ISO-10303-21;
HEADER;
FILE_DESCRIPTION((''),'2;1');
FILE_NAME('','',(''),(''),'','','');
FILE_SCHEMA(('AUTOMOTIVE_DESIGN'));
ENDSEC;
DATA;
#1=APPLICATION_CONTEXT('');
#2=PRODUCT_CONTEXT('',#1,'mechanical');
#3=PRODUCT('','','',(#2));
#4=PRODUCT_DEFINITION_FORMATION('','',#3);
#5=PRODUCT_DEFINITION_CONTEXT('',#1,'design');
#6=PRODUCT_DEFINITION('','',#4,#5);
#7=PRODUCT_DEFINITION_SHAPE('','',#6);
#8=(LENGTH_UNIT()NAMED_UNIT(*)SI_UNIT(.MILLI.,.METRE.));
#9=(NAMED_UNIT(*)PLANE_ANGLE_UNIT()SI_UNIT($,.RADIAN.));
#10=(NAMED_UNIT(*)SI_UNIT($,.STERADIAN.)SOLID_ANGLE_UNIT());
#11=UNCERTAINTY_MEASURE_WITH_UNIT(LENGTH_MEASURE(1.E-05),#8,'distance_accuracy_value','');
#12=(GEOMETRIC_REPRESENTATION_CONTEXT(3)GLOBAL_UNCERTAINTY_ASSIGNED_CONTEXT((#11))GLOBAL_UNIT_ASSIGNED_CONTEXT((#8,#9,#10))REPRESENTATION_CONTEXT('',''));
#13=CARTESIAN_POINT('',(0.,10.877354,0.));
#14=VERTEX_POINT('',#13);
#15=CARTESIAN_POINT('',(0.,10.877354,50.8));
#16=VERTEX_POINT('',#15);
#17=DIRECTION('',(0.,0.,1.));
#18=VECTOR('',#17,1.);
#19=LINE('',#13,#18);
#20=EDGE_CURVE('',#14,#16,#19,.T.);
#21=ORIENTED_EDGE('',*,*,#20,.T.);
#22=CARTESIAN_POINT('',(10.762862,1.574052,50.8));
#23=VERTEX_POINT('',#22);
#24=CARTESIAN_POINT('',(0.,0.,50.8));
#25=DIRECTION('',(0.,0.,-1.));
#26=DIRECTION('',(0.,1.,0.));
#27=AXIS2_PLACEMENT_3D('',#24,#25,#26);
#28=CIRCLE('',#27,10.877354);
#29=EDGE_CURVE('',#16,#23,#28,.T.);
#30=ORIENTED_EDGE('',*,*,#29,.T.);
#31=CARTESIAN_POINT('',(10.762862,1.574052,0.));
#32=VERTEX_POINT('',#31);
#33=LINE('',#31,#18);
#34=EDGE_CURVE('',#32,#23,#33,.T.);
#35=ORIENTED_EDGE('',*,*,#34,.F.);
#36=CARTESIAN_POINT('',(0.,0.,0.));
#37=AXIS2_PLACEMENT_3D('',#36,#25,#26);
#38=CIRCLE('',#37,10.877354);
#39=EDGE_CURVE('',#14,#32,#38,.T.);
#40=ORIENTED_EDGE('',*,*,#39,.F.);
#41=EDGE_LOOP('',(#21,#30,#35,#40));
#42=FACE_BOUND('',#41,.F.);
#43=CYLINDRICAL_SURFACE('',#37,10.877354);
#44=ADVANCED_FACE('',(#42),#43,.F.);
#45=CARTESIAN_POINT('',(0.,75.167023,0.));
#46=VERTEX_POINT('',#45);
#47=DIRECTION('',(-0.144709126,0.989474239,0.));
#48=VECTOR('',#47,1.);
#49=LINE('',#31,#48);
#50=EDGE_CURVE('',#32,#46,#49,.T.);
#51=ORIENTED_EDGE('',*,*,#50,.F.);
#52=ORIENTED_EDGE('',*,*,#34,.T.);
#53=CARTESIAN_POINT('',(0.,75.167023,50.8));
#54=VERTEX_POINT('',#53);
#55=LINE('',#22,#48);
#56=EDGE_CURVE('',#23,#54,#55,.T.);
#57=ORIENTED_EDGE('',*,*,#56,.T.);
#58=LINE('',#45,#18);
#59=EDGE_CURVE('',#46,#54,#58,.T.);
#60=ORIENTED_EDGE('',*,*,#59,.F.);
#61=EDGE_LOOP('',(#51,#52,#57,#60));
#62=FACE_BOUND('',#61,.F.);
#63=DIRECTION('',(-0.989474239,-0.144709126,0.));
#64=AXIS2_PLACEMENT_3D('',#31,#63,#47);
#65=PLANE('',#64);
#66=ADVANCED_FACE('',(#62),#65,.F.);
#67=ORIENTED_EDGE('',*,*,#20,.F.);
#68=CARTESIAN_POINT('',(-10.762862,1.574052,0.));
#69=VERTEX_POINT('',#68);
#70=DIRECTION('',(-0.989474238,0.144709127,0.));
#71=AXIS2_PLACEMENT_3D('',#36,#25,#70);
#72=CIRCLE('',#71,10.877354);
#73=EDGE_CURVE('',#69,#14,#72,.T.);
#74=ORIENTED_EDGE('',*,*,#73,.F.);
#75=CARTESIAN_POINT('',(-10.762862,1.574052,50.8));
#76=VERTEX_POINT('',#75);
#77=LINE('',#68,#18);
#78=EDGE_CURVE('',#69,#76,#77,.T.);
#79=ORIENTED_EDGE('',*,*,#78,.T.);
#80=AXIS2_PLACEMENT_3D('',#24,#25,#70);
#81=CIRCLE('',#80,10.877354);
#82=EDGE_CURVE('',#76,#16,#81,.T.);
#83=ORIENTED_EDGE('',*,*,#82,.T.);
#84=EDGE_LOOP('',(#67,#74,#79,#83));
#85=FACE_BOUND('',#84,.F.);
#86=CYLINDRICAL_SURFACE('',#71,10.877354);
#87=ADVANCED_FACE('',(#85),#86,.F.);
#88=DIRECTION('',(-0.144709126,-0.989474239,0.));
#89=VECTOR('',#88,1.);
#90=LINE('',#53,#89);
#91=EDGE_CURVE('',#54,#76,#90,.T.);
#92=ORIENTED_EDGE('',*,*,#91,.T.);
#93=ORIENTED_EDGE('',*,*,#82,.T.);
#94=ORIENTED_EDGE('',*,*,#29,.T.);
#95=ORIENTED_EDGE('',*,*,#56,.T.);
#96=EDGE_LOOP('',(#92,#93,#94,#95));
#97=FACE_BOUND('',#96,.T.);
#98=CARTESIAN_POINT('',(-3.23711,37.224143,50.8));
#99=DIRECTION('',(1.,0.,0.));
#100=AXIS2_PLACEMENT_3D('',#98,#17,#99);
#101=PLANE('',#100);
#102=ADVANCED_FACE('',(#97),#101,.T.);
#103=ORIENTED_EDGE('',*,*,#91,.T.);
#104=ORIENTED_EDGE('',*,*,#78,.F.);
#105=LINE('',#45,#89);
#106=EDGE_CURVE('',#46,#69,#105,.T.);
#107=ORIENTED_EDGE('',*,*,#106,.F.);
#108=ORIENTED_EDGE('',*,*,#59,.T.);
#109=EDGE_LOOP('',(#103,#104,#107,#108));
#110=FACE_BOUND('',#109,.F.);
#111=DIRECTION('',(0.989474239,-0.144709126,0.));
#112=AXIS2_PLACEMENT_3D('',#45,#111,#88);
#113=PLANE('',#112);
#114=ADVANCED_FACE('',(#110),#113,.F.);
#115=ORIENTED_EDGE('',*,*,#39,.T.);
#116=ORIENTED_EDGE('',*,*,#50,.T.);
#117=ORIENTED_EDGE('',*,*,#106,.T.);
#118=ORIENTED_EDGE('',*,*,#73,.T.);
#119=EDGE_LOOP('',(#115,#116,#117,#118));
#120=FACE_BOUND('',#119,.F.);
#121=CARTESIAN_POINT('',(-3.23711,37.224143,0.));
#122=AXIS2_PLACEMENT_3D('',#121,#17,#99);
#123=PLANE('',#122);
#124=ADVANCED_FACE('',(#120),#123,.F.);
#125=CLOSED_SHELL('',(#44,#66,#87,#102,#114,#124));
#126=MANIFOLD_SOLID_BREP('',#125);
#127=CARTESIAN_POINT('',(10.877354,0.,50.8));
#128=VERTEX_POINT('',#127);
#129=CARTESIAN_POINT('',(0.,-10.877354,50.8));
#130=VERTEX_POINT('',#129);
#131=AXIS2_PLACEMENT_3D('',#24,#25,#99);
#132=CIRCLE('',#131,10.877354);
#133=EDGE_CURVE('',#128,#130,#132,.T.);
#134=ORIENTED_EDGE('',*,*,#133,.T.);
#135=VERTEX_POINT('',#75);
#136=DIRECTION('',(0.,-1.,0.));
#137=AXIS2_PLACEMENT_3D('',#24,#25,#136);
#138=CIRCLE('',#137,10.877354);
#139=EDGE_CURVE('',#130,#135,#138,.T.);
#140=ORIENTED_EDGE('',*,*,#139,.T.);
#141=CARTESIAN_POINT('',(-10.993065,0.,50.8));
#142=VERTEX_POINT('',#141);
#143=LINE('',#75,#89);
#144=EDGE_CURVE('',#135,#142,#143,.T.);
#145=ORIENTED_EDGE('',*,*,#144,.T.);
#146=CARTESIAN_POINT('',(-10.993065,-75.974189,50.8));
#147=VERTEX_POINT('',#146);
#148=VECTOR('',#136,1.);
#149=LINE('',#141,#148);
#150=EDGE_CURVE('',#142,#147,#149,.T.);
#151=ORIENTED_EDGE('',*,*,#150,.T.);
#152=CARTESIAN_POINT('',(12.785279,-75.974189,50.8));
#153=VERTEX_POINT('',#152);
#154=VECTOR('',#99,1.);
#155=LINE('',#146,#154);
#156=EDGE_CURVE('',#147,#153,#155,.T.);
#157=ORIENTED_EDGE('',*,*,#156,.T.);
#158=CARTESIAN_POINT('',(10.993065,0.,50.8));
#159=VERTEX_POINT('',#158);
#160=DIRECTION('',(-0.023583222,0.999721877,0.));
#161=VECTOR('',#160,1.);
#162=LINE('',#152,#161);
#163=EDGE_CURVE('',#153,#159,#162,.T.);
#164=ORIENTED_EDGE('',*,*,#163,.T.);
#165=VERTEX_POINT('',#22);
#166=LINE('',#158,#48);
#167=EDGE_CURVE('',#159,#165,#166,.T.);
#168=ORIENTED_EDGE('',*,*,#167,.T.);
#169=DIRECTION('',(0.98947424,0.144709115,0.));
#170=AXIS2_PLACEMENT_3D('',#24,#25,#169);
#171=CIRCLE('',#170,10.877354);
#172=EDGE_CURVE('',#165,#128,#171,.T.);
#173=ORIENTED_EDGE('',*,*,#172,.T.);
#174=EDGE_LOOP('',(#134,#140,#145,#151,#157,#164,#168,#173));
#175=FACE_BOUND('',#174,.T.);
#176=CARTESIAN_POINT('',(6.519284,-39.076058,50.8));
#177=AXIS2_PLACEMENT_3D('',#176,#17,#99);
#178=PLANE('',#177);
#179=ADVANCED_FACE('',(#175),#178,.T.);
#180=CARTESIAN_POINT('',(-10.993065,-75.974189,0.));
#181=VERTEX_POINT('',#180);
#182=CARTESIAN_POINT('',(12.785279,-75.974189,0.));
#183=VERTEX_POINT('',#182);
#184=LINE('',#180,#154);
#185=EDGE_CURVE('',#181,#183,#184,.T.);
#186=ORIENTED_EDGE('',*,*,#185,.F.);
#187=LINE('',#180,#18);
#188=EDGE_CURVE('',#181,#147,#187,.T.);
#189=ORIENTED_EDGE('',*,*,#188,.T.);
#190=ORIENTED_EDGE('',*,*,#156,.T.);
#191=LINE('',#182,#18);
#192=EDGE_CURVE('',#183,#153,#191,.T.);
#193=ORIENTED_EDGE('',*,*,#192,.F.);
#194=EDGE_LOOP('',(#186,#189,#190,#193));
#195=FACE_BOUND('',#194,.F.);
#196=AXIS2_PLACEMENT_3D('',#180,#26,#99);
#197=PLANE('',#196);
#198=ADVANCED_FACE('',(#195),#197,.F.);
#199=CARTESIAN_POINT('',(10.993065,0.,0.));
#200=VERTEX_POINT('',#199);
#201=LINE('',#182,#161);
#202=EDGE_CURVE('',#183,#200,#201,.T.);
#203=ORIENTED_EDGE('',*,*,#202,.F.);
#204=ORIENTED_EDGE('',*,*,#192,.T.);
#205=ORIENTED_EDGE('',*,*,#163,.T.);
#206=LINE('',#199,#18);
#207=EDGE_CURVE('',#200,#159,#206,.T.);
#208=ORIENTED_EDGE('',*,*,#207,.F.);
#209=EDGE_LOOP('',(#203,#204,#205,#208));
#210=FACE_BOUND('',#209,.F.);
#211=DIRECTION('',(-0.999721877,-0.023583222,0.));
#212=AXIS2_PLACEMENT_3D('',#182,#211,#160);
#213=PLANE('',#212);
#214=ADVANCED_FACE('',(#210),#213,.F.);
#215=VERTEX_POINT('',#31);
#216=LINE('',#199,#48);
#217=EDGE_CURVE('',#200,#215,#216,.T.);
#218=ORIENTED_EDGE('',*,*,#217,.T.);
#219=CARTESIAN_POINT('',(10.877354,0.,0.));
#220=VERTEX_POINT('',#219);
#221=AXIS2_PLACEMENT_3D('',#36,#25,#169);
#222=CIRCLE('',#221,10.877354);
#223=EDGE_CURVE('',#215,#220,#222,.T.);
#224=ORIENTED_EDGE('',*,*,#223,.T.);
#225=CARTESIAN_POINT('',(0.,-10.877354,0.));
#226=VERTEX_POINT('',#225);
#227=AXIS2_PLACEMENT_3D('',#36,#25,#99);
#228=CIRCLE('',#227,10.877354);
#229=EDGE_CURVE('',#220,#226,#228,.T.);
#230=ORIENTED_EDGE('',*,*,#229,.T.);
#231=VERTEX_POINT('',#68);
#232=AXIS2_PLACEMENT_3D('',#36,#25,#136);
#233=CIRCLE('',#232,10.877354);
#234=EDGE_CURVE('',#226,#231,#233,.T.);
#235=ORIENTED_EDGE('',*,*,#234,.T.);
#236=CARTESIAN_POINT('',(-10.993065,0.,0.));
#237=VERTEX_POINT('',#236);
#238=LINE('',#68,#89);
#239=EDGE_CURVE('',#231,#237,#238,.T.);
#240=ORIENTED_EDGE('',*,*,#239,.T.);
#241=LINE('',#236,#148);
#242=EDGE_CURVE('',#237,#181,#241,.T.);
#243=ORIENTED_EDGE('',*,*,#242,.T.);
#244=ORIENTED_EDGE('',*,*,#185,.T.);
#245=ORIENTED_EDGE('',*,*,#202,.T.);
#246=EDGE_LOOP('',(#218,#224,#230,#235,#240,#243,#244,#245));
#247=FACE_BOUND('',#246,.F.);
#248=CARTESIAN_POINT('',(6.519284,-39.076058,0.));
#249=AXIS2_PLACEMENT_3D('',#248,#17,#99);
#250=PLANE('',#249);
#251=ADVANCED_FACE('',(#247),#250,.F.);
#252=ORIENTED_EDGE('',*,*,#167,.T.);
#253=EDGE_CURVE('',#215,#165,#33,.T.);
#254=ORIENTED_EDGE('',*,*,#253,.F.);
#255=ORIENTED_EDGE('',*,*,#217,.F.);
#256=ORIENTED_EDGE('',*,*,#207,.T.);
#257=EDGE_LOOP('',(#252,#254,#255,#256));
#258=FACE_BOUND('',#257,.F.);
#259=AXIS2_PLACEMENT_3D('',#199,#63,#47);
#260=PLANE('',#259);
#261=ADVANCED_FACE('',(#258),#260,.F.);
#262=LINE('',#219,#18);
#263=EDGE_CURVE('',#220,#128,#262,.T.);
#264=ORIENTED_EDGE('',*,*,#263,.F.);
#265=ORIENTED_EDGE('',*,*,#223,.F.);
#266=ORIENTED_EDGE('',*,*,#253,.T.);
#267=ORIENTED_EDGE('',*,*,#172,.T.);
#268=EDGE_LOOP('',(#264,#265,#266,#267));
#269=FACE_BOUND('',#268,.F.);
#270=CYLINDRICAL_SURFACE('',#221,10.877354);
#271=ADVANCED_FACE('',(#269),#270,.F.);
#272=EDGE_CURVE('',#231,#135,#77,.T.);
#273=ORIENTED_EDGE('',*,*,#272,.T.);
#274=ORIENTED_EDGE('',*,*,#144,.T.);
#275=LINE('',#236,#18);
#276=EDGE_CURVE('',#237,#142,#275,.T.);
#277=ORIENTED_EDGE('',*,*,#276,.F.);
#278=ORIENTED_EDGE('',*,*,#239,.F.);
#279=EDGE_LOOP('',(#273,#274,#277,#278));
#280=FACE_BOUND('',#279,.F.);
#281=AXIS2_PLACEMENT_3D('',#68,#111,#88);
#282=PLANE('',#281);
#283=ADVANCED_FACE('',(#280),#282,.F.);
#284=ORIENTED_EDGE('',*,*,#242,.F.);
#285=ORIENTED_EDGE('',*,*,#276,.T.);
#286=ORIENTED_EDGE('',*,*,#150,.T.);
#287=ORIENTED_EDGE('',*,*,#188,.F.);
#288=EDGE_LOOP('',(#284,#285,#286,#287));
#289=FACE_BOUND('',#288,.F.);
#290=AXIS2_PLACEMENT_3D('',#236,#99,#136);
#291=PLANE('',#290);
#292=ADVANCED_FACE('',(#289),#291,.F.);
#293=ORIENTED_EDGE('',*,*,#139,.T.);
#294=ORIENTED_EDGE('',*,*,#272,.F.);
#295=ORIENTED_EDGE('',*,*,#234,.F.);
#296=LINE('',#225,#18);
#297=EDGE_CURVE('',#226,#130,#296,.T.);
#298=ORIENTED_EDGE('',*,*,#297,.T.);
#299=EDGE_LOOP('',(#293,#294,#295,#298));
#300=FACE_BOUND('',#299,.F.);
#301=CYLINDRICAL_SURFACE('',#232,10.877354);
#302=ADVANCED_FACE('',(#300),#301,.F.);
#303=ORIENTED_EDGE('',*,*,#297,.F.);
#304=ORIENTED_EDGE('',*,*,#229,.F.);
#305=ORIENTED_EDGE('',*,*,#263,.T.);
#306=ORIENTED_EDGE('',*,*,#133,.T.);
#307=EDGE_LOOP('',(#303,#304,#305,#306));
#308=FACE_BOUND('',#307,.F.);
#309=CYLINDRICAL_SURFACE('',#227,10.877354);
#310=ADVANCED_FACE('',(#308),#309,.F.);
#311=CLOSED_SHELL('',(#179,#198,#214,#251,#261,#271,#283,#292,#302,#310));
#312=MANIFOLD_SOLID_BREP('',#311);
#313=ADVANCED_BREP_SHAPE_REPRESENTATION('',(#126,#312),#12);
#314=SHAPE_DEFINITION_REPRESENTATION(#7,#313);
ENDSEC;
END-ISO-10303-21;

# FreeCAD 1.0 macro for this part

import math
import FreeCAD as App
import Part
import Sketcher
Q = App.Units.Quantity

doc = App.newDocument("Part")
body = doc.addObject("PartDesign::Body", "Body")

sketch1 = body.newObject("Sketcher::SketchObject", "Sketch")
sketch1.AttachmentSupport = (doc.getObject("XY_Plane"), [""])
sketch1.MapMode = "FlatFace"
sketch1.addGeometry([
    Part.LineSegment(App.Vector(0, 75, 0), App.Vector(-11, 2, 0)),
    Part.ArcOfCircle(Part.Circle(App.Vector(0, 0, 0), App.Vector(0, 0, 1), 11), math.radians(90), math.radians(172)),
    Part.ArcOfCircle(Part.Circle(App.Vector(0, 0, 0), App.Vector(0, 0, 1), 11), math.radians(8), math.radians(90)),
    Part.LineSegment(App.Vector(11, 2, 0), App.Vector(0, 75, 0)),
], False)
sketch1.addConstraint([
    Sketcher.Constraint("Tangent", 0, 2, 1, 2),
    Sketcher.Constraint("Tangent", 1, 1, 2, 2),
    Sketcher.Constraint("Tangent", 2, 1, 3, 1),
    Sketcher.Constraint("Coincident", 3, 2, 0, 1),
    Sketcher.Constraint("Coincident", 1, 3, -1, 1),
    Sketcher.Constraint("Equal", 1, 2),
    Sketcher.Constraint("PointOnObject", 1, 1, -2),
    Sketcher.Constraint("PointOnObject", 3, 2, -2),
    Sketcher.Constraint("Radius", 1, 10.877354),
    Sketcher.Constraint("DistanceY", 0, 2, 1, 1, 9.303302),
])
pad1 = body.newObject("PartDesign::Pad", "Pad")
pad1.Profile = sketch1
pad1.Length = Q("2 in")
body2 = doc.addObject("PartDesign::Body", "Body001")

sketch2 = body2.newObject("Sketcher::SketchObject", "Sketch001")
sketch2.AttachmentSupport = (doc.getObject("XY_Plane001"), [""])
sketch2.MapMode = "FlatFace"
sketch2.addGeometry([
    Part.LineSegment(App.Vector(11, 0, 0), App.Vector(10.8, 1.6, 0)),
    Part.ArcOfCircle(Part.Circle(App.Vector(0, 0, 0), App.Vector(0, 0, 1), 10.9), math.radians(0), math.radians(8.32)),
    Part.ArcOfCircle(Part.Circle(App.Vector(0, 0, 0), App.Vector(0, 0, 1), 10.9), math.radians(-90), math.radians(0)),
    Part.ArcOfCircle(Part.Circle(App.Vector(0, 0, 0), App.Vector(0, 0, 1), 10.9), math.radians(172), math.radians(270)),
    Part.LineSegment(App.Vector(-10.8, 1.6, 0), App.Vector(-11, 0, 0)),
    Part.LineSegment(App.Vector(-11, 0, 0), App.Vector(-11, -76, 0)),
    Part.LineSegment(App.Vector(-11, -76, 0), App.Vector(12.8, -76, 0)),
    Part.LineSegment(App.Vector(12.8, -76, 0), App.Vector(11, 0, 0)),
], False)
sketch2.addConstraint([
    Sketcher.Constraint("Tangent", 0, 2, 1, 2),
    Sketcher.Constraint("Tangent", 1, 1, 2, 2),
    Sketcher.Constraint("Tangent", 2, 1, 3, 2),
    Sketcher.Constraint("Tangent", 3, 1, 4, 1),
    Sketcher.Constraint("Coincident", 4, 2, 5, 1),
    Sketcher.Constraint("Coincident", 5, 2, 6, 1),
    Sketcher.Constraint("Coincident", 6, 2, 7, 1),
    Sketcher.Constraint("Coincident", 7, 2, 0, 1),
    Sketcher.Constraint("Vertical", 5),
    Sketcher.Constraint("Horizontal", 6),
    Sketcher.Constraint("Coincident", 1, 3, -1, 1),
    Sketcher.Constraint("Coincident", 3, 3, -1, 1),
    Sketcher.Constraint("Symmetric", 4, 2, 7, 2, -1, 1),
    Sketcher.Constraint("PointOnObject", 1, 1, -1),
    Sketcher.Constraint("PointOnObject", 2, 1, -2),
    Sketcher.Constraint("PointOnObject", 4, 2, -1),
    Sketcher.Constraint("Radius", 1, 10.877354),
    Sketcher.Constraint("DistanceY", 5, 2, 5, 1, 75.974189),
    Sketcher.Constraint("DistanceX", 6, 1, 6, 2, 23.778344),
    Sketcher.Constraint("DistanceX", -1, 1, 0, 2, 10.762862),
])
pad2 = body2.newObject("PartDesign::Pad", "Pad001")
pad2.Profile = sketch2
pad2.Length = Q("2 in")

doc.recompute()
